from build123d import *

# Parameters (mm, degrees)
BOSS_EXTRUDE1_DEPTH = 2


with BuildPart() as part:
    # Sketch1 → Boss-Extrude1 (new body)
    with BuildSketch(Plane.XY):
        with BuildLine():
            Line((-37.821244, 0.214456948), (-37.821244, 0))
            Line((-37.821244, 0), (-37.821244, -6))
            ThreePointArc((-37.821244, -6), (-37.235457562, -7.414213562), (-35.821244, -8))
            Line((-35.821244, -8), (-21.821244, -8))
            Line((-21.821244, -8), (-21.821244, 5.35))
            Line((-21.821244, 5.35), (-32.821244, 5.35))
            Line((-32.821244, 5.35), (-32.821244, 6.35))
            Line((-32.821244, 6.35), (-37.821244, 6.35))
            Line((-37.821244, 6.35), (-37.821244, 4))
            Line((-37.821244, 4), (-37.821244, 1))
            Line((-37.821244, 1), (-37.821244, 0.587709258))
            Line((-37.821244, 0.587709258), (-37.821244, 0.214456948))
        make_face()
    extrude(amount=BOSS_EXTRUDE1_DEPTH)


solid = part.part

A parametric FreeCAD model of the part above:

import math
import FreeCAD as App
import Part
import Sketcher
from FreeCAD import Vector
Q = App.Units.Quantity

doc = App.newDocument("Part")
body = doc.addObject("PartDesign::Body", "Body")

sketch1 = body.newObject("Sketcher::SketchObject", "Sketch")
sketch1.AttachmentSupport = (doc.getObject("XY_Plane"), [""])
sketch1.MapMode = "FlatFace"
sketch1.addGeometry([
    Part.ArcOfCircle(Part.Circle(Vector(-35.8, -6, 0), Vector(0, 0, 1), 2), math.radians(-180), math.radians(-90)),
    Part.LineSegment(Vector(-35.8, -8, 0), Vector(-21.8, -8, 0)),
    Part.LineSegment(Vector(-21.8, -8, 0), Vector(-21.8, 5.3, 0)),
    Part.LineSegment(Vector(-21.8, 5.3, 0), Vector(-32.8, 5.3, 0)),
    Part.LineSegment(Vector(-32.8, 5.3, 0), Vector(-32.8, 6.3, 0)),
    Part.LineSegment(Vector(-32.8, 6.3, 0), Vector(-37.8, 6.3, 0)),
    Part.LineSegment(Vector(-37.8, 6.3, 0), Vector(-37.8, -6, 0)),
], False)
sketch1.addConstraint([
    Sketcher.Constraint("Tangent", 0, 2, 1, 1),
    Sketcher.Constraint("Coincident", 1, 2, 2, 1),
    Sketcher.Constraint("Coincident", 2, 2, 3, 1),
    Sketcher.Constraint("Coincident", 3, 2, 4, 1),
    Sketcher.Constraint("Coincident", 4, 2, 5, 1),
    Sketcher.Constraint("Coincident", 5, 2, 6, 1),
    Sketcher.Constraint("Tangent", 6, 2, 0, 1),
    Sketcher.Constraint("Horizontal", 1),
    Sketcher.Constraint("Vertical", 2),
    Sketcher.Constraint("Horizontal", 3),
    Sketcher.Constraint("Vertical", 4),
    Sketcher.Constraint("Horizontal", 5),
    Sketcher.Constraint("Vertical", 6),
    Sketcher.Constraint("Radius", 0, Q("2 mm")),
    Sketcher.Constraint("DistanceX", 1, 1, 1, 2, Q("14 mm")),
    Sketcher.Constraint("DistanceX", 3, 2, 3, 1, Q("11 mm")),
    Sketcher.Constraint("DistanceY", 4, 1, 4, 2, Q("1 mm")),
    Sketcher.Constraint("DistanceY", 0, 3, -1, 1, Q("6 mm")),
    Sketcher.Constraint("DistanceY", 2, 1, 2, 2, Q("13.35 mm")),
    Sketcher.Constraint("DistanceX", 0, 3, -1, 1, Q("35.821244 mm")),
])
pad1 = body.newObject("PartDesign::Pad", "Pad")
pad1.Profile = sketch1
pad1.Length = 2

doc.recompute()
